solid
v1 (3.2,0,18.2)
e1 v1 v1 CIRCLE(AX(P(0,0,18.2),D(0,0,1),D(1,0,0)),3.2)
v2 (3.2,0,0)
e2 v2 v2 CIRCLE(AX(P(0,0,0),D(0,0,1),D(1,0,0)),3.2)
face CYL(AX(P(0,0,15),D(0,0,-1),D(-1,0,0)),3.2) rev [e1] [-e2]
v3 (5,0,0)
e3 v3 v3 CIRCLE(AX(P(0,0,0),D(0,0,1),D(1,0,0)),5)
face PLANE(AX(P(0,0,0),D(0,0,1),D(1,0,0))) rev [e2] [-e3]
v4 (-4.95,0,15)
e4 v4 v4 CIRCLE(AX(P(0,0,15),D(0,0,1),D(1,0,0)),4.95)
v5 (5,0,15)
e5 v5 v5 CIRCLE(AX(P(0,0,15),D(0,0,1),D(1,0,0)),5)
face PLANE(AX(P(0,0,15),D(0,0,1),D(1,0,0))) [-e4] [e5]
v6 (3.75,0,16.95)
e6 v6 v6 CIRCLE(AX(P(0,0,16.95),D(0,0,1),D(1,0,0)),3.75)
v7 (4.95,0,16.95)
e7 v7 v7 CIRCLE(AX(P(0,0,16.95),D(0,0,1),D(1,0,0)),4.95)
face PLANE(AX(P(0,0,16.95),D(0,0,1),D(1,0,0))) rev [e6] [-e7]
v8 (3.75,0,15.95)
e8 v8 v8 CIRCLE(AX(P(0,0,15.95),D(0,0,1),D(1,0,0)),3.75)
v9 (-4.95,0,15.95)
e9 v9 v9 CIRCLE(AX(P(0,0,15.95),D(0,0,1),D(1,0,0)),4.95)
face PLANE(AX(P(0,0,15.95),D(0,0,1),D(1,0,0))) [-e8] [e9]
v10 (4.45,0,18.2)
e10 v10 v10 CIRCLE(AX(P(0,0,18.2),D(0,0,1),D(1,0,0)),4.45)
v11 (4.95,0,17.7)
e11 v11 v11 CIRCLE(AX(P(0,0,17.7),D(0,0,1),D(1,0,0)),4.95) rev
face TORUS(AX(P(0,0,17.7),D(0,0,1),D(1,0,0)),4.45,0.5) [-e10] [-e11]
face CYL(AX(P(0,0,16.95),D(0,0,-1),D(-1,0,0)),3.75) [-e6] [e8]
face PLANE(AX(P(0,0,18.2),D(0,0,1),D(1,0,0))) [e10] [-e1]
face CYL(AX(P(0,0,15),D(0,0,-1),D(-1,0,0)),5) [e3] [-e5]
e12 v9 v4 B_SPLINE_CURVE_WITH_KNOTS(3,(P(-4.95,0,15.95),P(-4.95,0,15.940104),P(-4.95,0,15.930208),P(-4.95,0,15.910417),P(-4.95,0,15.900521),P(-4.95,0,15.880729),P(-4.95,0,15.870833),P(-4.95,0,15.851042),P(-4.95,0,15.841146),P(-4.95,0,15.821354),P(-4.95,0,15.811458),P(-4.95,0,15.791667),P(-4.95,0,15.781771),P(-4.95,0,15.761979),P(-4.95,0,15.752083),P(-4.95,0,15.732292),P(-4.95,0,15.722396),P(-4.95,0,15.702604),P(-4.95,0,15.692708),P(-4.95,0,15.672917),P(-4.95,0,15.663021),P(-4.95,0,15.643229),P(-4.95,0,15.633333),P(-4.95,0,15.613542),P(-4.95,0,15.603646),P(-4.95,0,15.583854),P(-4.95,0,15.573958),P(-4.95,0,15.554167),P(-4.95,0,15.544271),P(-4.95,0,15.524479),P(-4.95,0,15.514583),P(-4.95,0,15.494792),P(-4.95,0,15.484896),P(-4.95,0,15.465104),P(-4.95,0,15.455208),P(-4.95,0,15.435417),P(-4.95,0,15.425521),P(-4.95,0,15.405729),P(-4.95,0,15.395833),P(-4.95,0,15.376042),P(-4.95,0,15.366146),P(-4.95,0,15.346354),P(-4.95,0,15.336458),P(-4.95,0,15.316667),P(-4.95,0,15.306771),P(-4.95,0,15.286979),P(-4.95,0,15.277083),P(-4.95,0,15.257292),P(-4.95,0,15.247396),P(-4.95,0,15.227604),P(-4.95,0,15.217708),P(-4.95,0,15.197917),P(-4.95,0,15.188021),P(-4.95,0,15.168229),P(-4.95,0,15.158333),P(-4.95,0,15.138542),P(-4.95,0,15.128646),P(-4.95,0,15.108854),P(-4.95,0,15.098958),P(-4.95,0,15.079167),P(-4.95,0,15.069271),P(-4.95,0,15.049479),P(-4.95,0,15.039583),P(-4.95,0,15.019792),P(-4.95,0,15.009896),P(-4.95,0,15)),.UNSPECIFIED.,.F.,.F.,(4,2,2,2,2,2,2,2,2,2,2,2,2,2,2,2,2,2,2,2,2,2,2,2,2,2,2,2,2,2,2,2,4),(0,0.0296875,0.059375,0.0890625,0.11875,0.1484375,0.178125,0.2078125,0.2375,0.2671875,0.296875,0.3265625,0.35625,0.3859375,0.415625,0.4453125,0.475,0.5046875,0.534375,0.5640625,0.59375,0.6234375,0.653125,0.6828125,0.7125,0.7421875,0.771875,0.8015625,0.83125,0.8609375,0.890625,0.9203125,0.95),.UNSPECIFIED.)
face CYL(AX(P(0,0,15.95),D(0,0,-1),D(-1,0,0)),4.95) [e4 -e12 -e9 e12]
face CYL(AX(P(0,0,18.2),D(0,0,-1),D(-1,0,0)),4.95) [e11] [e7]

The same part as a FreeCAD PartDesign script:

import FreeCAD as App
import Part
import Sketcher
Q = App.Units.Quantity


def edges_at(feature, points):
    """Names of the edges that pass closest to the given points."""
    edges = feature.Shape.Edges
    near = lambda p: min(range(len(edges)), key=lambda i: edges[i].distToShape(Part.Vertex(*p))[0])
    return sorted({f"Edge{near(p) + 1}" for p in points})

doc = App.newDocument("Part")
params = doc.addObject("Spreadsheet::Sheet", "Params")
for row, (alias, value) in enumerate([
    ("sketch1_diameter", "10 mm"),
    ("sketch1_diameter2", "6.4 mm"),
    ("pad1_length", "15 mm"),
    ("sketch2_diameter", "9.9 mm"),
    ("sketch2_diameter2", "6.4 mm"),
    ("pad2_length", "0.95 mm"),
    ("sketch3_diameter", "7.5 mm"),
    ("sketch3_diameter2", "6.4 mm"),
    ("pad3_length", "1 mm"),
    ("sketch4_diameter", "9.9 mm"),
    ("sketch4_diameter2", "6.4 mm"),
    ("pad4_length", "1.25 mm"),
    ("fillet_radius", "0.5 mm"),
], start=1):
    params.set(f"A{row}", alias)
    params.set(f"B{row}", "=" + value)
    params.setAlias(f"B{row}", alias)

body = doc.addObject("PartDesign::Body", "Body")

# Sketch on XY plane
sketch1 = body.newObject("Sketcher::SketchObject", "Sketch")
sketch1.AttachmentSupport = (doc.getObject("XY_Plane"), [""])
sketch1.MapMode = "FlatFace"
sketch1.addGeometry([
    Part.Circle(App.Vector(0, 0, 0), App.Vector(0, 0, 1), 5),
    Part.Circle(App.Vector(0, 0, 0), App.Vector(0, 0, 1), 3.2),
], False)
sketch1.addConstraint([
    Sketcher.Constraint("Coincident", 0, 3, -1, 1),
    Sketcher.Constraint("Coincident", 1, 3, -1, 1),
    Sketcher.Constraint("Diameter", 0, Q("10 mm")),
    Sketcher.Constraint("Diameter", 1, Q("6.4 mm")),
])
sketch1.setExpression("Constraints[2]", "Params.sketch1_diameter")
sketch1.setExpression("Constraints[3]", "Params.sketch1_diameter2")
pad1 = body.newObject("PartDesign::Pad", "Pad")
pad1.Profile = sketch1
pad1.setExpression("Length", "Params.pad1_length")

# Sketch on XY plane
sketch2 = body.newObject("Sketcher::SketchObject", "Sketch001")
sketch2.AttachmentSupport = (doc.getObject("XY_Plane"), [""])
sketch2.MapMode = "FlatFace"
sketch2.AttachmentOffset = App.Placement(App.Vector(0, 0, 15), App.Rotation())
sketch2.addGeometry([
    Part.Circle(App.Vector(0, 0, 0), App.Vector(0, 0, 1), 5),
    Part.Circle(App.Vector(0, 0, 0), App.Vector(0, 0, 1), 3.2),
], False)
sketch2.addConstraint([
    Sketcher.Constraint("Coincident", 0, 3, -1, 1),
    Sketcher.Constraint("Coincident", 1, 3, -1, 1),
    Sketcher.Constraint("Diameter", 0, Q("9.9 mm")),
    Sketcher.Constraint("Diameter", 1, Q("6.4 mm")),
])
sketch2.setExpression("Constraints[2]", "Params.sketch2_diameter")
sketch2.setExpression("Constraints[3]", "Params.sketch2_diameter2")
pad2 = body.newObject("PartDesign::Pad", "Pad001")
pad2.Profile = sketch2
pad2.setExpression("Length", "Params.pad2_length")

# Sketch on XY plane
sketch3 = body.newObject("Sketcher::SketchObject", "Sketch002")
sketch3.AttachmentSupport = (doc.getObject("XY_Plane"), [""])
sketch3.MapMode = "FlatFace"
sketch3.AttachmentOffset = App.Placement(App.Vector(0, 0, 15.95), App.Rotation())
sketch3.addGeometry([
    Part.Circle(App.Vector(0, 0, 0), App.Vector(0, 0, 1), 3.8),
    Part.Circle(App.Vector(0, 0, 0), App.Vector(0, 0, 1), 3.2),
], False)
sketch3.addConstraint([
    Sketcher.Constraint("Coincident", 0, 3, -1, 1),
    Sketcher.Constraint("Coincident", 1, 3, -1, 1),
    Sketcher.Constraint("Diameter", 0, Q("7.5 mm")),
    Sketcher.Constraint("Diameter", 1, Q("6.4 mm")),
])
sketch3.setExpression("Constraints[2]", "Params.sketch3_diameter")
sketch3.setExpression("Constraints[3]", "Params.sketch3_diameter2")
pad3 = body.newObject("PartDesign::Pad", "Pad002")
pad3.Profile = sketch3
pad3.setExpression("Length", "Params.pad3_length")

# Sketch on XY plane
sketch4 = body.newObject("Sketcher::SketchObject", "Sketch003")
sketch4.AttachmentSupport = (doc.getObject("XY_Plane"), [""])
sketch4.MapMode = "FlatFace"
sketch4.AttachmentOffset = App.Placement(App.Vector(0, 0, 16.95), App.Rotation())
sketch4.addGeometry([
    Part.Circle(App.Vector(0, 0, 0), App.Vector(0, 0, 1), 5),
    Part.Circle(App.Vector(0, 0, 0), App.Vector(0, 0, 1), 3.2),
], False)
sketch4.addConstraint([
    Sketcher.Constraint("Coincident", 0, 3, -1, 1),
    Sketcher.Constraint("Coincident", 1, 3, -1, 1),
    Sketcher.Constraint("Diameter", 0, Q("9.9 mm")),
    Sketcher.Constraint("Diameter", 1, Q("6.4 mm")),
])
sketch4.setExpression("Constraints[2]", "Params.sketch4_diameter")
sketch4.setExpression("Constraints[3]", "Params.sketch4_diameter2")
pad4 = body.newObject("PartDesign::Pad", "Pad003")
pad4.Profile = sketch4
pad4.setExpression("Length", "Params.pad4_length")
doc.recompute()

fillet = body.newObject("PartDesign::Fillet", "Fillet")
fillet.Base = (pad4, edges_at(pad4, [(4.95, 0, 18.2)]))
fillet.setExpression("Radius", "Params.fillet_radius")

doc.recompute()
